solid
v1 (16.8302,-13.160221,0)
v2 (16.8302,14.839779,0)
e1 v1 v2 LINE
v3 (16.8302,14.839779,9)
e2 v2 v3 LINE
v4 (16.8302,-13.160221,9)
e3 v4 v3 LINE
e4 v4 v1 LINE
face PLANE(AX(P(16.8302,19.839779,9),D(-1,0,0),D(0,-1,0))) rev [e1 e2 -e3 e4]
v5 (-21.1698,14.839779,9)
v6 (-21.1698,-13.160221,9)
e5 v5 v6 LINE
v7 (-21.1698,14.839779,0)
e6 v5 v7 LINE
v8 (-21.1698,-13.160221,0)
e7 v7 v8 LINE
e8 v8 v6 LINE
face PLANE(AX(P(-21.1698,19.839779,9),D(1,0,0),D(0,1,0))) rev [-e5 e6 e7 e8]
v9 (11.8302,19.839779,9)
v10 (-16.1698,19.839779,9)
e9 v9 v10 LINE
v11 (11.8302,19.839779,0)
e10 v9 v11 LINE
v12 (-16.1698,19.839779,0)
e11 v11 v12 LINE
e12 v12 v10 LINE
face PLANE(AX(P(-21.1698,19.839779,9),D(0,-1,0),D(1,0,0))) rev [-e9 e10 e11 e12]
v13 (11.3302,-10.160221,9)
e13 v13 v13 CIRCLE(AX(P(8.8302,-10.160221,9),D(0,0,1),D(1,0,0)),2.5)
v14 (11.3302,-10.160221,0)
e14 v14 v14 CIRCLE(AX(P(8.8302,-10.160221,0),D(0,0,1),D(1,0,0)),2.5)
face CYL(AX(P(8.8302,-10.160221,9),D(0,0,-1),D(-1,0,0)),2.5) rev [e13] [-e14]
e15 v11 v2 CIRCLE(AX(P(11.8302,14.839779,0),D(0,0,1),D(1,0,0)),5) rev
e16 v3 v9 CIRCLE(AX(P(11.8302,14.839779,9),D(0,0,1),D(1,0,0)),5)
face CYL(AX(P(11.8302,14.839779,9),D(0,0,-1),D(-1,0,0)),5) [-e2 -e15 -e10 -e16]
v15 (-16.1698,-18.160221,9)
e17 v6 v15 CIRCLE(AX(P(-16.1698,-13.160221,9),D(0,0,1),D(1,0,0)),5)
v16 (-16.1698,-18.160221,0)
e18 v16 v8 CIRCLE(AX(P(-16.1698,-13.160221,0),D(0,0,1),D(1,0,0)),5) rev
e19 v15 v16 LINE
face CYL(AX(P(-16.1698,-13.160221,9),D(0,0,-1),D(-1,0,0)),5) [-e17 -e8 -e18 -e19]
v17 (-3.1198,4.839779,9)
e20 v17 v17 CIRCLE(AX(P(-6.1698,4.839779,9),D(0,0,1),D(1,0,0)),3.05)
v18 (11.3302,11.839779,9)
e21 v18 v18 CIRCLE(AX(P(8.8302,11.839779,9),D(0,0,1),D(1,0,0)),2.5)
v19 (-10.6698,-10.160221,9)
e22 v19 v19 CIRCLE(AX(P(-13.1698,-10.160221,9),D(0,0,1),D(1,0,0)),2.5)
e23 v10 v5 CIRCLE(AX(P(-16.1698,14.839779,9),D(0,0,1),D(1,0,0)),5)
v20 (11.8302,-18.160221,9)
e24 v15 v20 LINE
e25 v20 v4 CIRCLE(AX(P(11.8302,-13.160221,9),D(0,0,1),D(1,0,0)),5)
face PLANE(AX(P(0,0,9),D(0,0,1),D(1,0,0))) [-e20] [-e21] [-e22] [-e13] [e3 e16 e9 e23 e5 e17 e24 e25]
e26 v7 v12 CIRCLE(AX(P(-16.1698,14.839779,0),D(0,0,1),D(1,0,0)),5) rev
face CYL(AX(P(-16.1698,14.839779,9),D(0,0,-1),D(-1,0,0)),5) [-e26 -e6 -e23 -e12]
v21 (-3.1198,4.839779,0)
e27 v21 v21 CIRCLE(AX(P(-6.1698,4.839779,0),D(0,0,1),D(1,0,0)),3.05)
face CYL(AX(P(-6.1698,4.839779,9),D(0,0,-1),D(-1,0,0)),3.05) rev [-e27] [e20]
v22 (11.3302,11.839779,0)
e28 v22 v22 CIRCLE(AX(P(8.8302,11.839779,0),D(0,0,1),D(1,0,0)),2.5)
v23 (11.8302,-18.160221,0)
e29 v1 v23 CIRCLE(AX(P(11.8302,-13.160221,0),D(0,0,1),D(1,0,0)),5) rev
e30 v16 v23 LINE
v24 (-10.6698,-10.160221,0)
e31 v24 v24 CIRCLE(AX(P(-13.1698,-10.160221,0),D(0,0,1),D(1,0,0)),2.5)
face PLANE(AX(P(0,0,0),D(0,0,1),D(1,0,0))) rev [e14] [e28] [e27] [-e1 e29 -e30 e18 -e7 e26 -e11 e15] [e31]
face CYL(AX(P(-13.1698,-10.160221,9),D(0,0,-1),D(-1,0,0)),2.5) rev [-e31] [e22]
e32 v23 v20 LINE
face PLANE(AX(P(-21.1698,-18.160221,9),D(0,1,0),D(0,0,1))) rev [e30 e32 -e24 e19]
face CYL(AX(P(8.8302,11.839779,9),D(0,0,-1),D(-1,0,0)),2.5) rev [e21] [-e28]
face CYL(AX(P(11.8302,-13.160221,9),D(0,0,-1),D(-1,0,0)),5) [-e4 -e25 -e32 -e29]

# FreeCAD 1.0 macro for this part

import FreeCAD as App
import Part
import Sketcher


def edges_at(feature, points):
    """Names of the edges that pass closest to the given points."""
    edges = feature.Shape.Edges
    near = lambda p: min(range(len(edges)), key=lambda i: edges[i].distToShape(Part.Vertex(*p))[0])
    return sorted({f"Edge{near(p) + 1}" for p in points})


def add_polygon(sketch, points):
    """Adds a closed chain of lines whose ends are joined by coincident constraints."""
    first, n = sketch.GeometryCount, len(points)
    for a, b in zip(points, points[1:] + points[:1]):
        sketch.addGeometry(Part.LineSegment(App.Vector(*a, 0), App.Vector(*b, 0)), False)
    for i in range(n):
        sketch.addConstraint(Sketcher.Constraint("Coincident", first + i, 2, first + (i + 1) % n, 1))

doc = App.newDocument("Part")
body = doc.addObject("PartDesign::Body", "Body")

# Sketch on XY plane
sketch1 = body.newObject("Sketcher::SketchObject", "Sketch")
sketch1.AttachmentSupport = (doc.getObject("XY_Plane"), [""])
sketch1.MapMode = "FlatFace"
add_polygon(sketch1, [(-21.1698, 19.839779), (-21.1698, -18.160221), (16.8302, -18.160221), (16.8302, 19.839779)])  # lines 0-3
sketch1.addGeometry(Part.Circle(App.Vector(-13.1698, -10.160221, 0), App.Vector(0, 0, 1), 2.5), False)  # 4
sketch1.addGeometry(Part.Circle(App.Vector(8.8302, -10.160221, 0), App.Vector(0, 0, 1), 2.5), False)  # 5
sketch1.addGeometry(Part.Circle(App.Vector(-6.1698, 4.839779, 0), App.Vector(0, 0, 1), 3.05), False)  # 6
sketch1.addGeometry(Part.Circle(App.Vector(8.8302, 11.839779, 0), App.Vector(0, 0, 1), 2.5), False)  # 7
sketch1.addConstraint([
    Sketcher.Constraint("Vertical", 0),
    Sketcher.Constraint("Horizontal", 1),
    Sketcher.Constraint("Vertical", 2),
    Sketcher.Constraint("Horizontal", 3),
    Sketcher.Constraint("Equal", 4, 5),
    Sketcher.Constraint("Equal", 5, 7),
    Sketcher.Constraint("Horizontal", 4, 3, 5, 3),
    Sketcher.Constraint("Vertical", 5, 3, 7, 3),
    Sketcher.Constraint("Equal", 3, 0),
    Sketcher.Constraint("Diameter", 4, 5.0),
    Sketcher.Constraint("Diameter", 6, 6.1),
    Sketcher.Constraint("DistanceX", 1, 1, 1, 2, 38.0),
    Sketcher.Constraint("DistanceX", 4, 3, 5, 3, 22.0),
    Sketcher.Constraint("DistanceX", 4, 3, 6, 3, 7.0),
    Sketcher.Constraint("DistanceY", 4, 3, 6, 3, 15.0),
    Sketcher.Constraint("DistanceY", 6, 3, 7, 3, 7.0),
    Sketcher.Constraint("DistanceX", 0, 2, 4, 3, 8.0),
    Sketcher.Constraint("DistanceY", 0, 2, 4, 3, 8.0),
    Sketcher.Constraint("DistanceX", 4, 3, -1, 1, 13.1698),
    Sketcher.Constraint("DistanceY", 4, 3, -1, 1, 10.160221),
])
pad1 = body.newObject("PartDesign::Pad", "Pad")
pad1.Profile = sketch1
pad1.Length = 9
doc.recompute()

fillet = body.newObject("PartDesign::Fillet", "Fillet")
fillet.Base = (pad1, edges_at(pad1, [
    (-21.17, 19.84, 4.5),
    (16.83, 19.84, 4.5),
    (16.83, -18.16, 4.5),
    (-21.17, -18.16, 4.5),
]))
fillet.Radius = 5

doc.recompute()
